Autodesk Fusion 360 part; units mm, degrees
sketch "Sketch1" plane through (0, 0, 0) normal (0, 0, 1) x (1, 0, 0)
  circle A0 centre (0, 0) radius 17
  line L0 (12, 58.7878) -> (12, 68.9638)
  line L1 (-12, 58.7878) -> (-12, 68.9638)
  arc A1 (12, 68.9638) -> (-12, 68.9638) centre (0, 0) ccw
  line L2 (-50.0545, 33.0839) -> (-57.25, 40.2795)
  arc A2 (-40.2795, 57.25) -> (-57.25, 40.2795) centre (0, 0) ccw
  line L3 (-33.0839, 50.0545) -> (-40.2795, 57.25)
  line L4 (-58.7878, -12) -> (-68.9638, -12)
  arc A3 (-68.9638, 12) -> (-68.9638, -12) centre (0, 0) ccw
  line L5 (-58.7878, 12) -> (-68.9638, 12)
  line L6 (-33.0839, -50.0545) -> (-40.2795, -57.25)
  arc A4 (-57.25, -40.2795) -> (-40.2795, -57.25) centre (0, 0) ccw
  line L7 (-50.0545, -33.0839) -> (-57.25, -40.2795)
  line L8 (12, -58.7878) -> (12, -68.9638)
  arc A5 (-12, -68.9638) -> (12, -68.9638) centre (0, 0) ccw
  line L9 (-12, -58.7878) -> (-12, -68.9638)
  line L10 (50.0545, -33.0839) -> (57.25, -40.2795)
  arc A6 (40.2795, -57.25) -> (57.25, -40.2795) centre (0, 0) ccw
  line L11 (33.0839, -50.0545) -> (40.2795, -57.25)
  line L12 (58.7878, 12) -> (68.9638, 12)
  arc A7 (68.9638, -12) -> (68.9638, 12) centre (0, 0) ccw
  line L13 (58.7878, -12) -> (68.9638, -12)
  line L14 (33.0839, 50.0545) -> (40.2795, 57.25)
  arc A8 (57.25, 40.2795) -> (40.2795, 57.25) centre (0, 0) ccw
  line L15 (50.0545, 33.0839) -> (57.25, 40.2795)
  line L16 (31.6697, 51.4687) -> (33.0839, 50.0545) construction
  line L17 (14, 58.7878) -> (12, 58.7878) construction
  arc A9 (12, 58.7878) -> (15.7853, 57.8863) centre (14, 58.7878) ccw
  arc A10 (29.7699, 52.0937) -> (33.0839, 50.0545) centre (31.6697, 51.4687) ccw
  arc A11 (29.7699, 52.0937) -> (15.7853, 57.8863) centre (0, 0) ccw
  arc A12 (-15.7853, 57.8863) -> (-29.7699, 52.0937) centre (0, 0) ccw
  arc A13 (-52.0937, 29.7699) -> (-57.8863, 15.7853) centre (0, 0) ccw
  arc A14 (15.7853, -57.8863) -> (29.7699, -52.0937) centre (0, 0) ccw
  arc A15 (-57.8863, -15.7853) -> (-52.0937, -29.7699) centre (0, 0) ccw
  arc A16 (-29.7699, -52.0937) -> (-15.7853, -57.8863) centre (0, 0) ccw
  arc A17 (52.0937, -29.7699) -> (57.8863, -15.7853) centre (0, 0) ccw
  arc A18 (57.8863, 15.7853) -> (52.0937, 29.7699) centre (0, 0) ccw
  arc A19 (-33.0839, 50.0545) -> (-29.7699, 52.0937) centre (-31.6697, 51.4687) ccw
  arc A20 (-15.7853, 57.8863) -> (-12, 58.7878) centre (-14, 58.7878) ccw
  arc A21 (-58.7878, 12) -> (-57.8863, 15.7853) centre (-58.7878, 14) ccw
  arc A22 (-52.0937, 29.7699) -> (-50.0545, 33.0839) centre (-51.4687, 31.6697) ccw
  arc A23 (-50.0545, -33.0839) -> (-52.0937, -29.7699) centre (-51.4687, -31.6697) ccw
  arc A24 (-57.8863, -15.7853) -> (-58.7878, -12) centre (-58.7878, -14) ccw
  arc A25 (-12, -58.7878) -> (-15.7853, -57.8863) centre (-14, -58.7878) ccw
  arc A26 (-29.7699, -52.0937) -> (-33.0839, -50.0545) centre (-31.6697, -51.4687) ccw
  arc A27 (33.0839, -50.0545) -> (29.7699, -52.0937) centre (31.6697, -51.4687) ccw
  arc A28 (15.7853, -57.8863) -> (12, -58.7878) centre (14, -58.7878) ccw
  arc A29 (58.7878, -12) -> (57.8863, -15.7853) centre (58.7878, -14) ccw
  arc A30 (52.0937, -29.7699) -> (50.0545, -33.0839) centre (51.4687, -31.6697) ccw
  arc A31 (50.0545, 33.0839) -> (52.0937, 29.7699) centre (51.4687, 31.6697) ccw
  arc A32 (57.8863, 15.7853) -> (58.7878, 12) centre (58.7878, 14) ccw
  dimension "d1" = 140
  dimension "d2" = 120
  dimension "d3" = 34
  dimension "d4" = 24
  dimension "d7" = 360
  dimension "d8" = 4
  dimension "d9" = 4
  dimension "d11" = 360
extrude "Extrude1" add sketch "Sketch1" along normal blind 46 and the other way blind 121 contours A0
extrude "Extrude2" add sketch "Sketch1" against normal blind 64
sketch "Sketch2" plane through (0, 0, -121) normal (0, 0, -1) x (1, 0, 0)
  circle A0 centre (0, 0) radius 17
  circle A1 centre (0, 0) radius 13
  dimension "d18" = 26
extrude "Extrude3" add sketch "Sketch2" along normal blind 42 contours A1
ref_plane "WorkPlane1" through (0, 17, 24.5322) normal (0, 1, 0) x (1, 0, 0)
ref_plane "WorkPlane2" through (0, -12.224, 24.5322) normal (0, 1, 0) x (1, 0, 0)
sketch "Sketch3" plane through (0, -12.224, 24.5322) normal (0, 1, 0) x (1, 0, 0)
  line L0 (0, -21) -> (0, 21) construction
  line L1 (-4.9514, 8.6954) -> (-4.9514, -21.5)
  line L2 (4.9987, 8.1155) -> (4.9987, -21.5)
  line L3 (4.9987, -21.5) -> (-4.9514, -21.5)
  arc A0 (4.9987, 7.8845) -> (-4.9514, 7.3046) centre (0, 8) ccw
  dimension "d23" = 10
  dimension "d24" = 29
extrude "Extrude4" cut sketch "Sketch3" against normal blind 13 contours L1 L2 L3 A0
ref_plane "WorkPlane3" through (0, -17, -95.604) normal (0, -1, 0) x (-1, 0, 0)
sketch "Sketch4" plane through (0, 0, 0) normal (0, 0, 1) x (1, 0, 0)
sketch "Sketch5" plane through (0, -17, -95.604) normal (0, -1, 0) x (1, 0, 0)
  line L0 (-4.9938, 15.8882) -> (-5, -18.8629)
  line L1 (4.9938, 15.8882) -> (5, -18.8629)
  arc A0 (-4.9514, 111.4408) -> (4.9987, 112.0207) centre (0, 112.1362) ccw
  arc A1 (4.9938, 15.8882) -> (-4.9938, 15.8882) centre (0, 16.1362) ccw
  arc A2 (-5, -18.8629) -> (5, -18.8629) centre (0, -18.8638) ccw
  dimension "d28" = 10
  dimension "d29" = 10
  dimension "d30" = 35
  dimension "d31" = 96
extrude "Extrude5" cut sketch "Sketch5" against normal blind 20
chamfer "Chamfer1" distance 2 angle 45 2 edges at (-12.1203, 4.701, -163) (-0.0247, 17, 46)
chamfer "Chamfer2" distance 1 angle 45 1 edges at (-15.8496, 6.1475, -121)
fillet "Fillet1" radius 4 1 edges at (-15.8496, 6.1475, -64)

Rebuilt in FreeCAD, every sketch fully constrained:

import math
import FreeCAD as App
import Part
import Sketcher


def edges_at(feature, points):
    """Names of the edges that pass closest to the given points."""
    edges = feature.Shape.Edges
    near = lambda p: min(range(len(edges)), key=lambda i: edges[i].distToShape(Part.Vertex(*p))[0])
    return sorted({f"Edge{near(p) + 1}" for p in points})

doc = App.newDocument("Part")
body = doc.addObject("PartDesign::Body", "Body")

sketch1 = doc.addObject("Sketcher::SketchObject", "Sketch")
body.addObject(sketch1)
sketch1.AttachmentSupport = (doc.XY_Plane, [""])
sketch1.MapMode = "FlatFace"
sketch1.addGeometry(Part.Circle(App.Vector(0, 0, 0), App.Vector(0, 0, 1), 17), False)
sketch1.addConstraint([
    Sketcher.Constraint("Coincident", 0, 3, -1, 1),
    Sketcher.Constraint("Diameter", 0, 34.0),
])
pad1 = doc.addObject("PartDesign::Pad", "Pad")
body.addObject(pad1)
pad1.Profile = sketch1
pad1.Type = "TwoLengths"
pad1.Length = 46
pad1.Length2 = 121

sketch2 = doc.addObject("Sketcher::SketchObject", "Sketch001")
body.addObject(sketch2)
sketch2.AttachmentSupport = (doc.XY_Plane, [""])
sketch2.MapMode = "FlatFace"
sketch2.addGeometry([
    Part.ArcOfCircle(Part.Circle(App.Vector(14, 58.8, 0), App.Vector(0, 0, 1), 2), math.radians(180), math.radians(333)),
    Part.LineSegment(App.Vector(12, 58.8, 0), App.Vector(12, 69, 0)),
    Part.ArcOfCircle(Part.Circle(App.Vector(0, 0, 0), App.Vector(0, 0, 1), 70), math.radians(80.13), math.radians(99.87)),
    Part.LineSegment(App.Vector(-12, 69, 0), App.Vector(-12, 58.8, 0)),
    Part.ArcOfCircle(Part.Circle(App.Vector(-14, 58.8, 0), App.Vector(0, 0, 1), 2), math.radians(-153), math.radians(0)),
    Part.ArcOfCircle(Part.Circle(App.Vector(0, 0, 0), App.Vector(0, 0, 1), 60), math.radians(105.25), math.radians(119.75)),
    Part.ArcOfCircle(Part.Circle(App.Vector(-31.7, 51.5, 0), App.Vector(0, 0, 1), 2), math.radians(-135), math.radians(18)),
    Part.LineSegment(App.Vector(-33.1, 50.1, 0), App.Vector(-40.3, 57.2, 0)),
    Part.ArcOfCircle(Part.Circle(App.Vector(0, 0, 0), App.Vector(0, 0, 1), 70), math.radians(125.13), math.radians(144.87)),
    Part.LineSegment(App.Vector(-57.2, 40.3, 0), App.Vector(-50.1, 33.1, 0)),
    Part.ArcOfCircle(Part.Circle(App.Vector(-51.5, 31.7, 0), App.Vector(0, 0, 1), 2), math.radians(-108), math.radians(45)),
    Part.ArcOfCircle(Part.Circle(App.Vector(0, 0, 0), App.Vector(0, 0, 1), 60), math.radians(150.25), math.radians(164.75)),
    Part.ArcOfCircle(Part.Circle(App.Vector(-58.8, 14, 0), App.Vector(0, 0, 1), 2), math.radians(-90), math.radians(63)),
    Part.LineSegment(App.Vector(-58.8, 12, 0), App.Vector(-69, 12, 0)),
    Part.ArcOfCircle(Part.Circle(App.Vector(0, 0, 0), App.Vector(0, 0, 1), 70), math.radians(170.13), math.radians(189.87)),
    Part.LineSegment(App.Vector(-69, -12, 0), App.Vector(-58.8, -12, 0)),
    Part.ArcOfCircle(Part.Circle(App.Vector(-58.8, -14, 0), App.Vector(0, 0, 1), 2), math.radians(-63), math.radians(90)),
    Part.ArcOfCircle(Part.Circle(App.Vector(0, 0, 0), App.Vector(0, 0, 1), 60), math.radians(-164.75), math.radians(-150.25)),
    Part.ArcOfCircle(Part.Circle(App.Vector(-51.5, -31.7, 0), App.Vector(0, 0, 1), 2), math.radians(-45), math.radians(108)),
    Part.LineSegment(App.Vector(-50.1, -33.1, 0), App.Vector(-57.2, -40.3, 0)),
    Part.ArcOfCircle(Part.Circle(App.Vector(0, 0, 0), App.Vector(0, 0, 1), 70), math.radians(-144.87), math.radians(-125.13)),
    Part.LineSegment(App.Vector(-40.3, -57.2, 0), App.Vector(-33.1, -50.1, 0)),
    Part.ArcOfCircle(Part.Circle(App.Vector(-31.7, -51.5, 0), App.Vector(0, 0, 1), 2), math.radians(-18), math.radians(135)),
    Part.ArcOfCircle(Part.Circle(App.Vector(0, 0, 0), App.Vector(0, 0, 1), 60), math.radians(-119.75), math.radians(-105.25)),
    Part.ArcOfCircle(Part.Circle(App.Vector(-14, -58.8, 0), App.Vector(0, 0, 1), 2), math.radians(0), math.radians(153)),
    Part.LineSegment(App.Vector(-12, -58.8, 0), App.Vector(-12, -69, 0)),
    Part.ArcOfCircle(Part.Circle(App.Vector(0, 0, 0), App.Vector(0, 0, 1), 70), math.radians(-99.87), math.radians(-80.13)),
    Part.LineSegment(App.Vector(12, -69, 0), App.Vector(12, -58.8, 0)),
    Part.ArcOfCircle(Part.Circle(App.Vector(14, -58.8, 0), App.Vector(0, 0, 1), 2), math.radians(27), math.radians(180)),
    Part.ArcOfCircle(Part.Circle(App.Vector(0, 0, 0), App.Vector(0, 0, 1), 60), math.radians(-74.75), math.radians(-60.25)),
    Part.ArcOfCircle(Part.Circle(App.Vector(31.7, -51.5, 0), App.Vector(0, 0, 1), 2), math.radians(45), math.radians(198)),
    Part.LineSegment(App.Vector(33.1, -50.1, 0), App.Vector(40.3, -57.2, 0)),
    Part.ArcOfCircle(Part.Circle(App.Vector(0, 0, 0), App.Vector(0, 0, 1), 70), math.radians(-54.87), math.radians(-35.13)),
    Part.LineSegment(App.Vector(57.2, -40.3, 0), App.Vector(50.1, -33.1, 0)),
    Part.ArcOfCircle(Part.Circle(App.Vector(51.5, -31.7, 0), App.Vector(0, 0, 1), 2), math.radians(72), math.radians(225)),
    Part.ArcOfCircle(Part.Circle(App.Vector(0, 0, 0), App.Vector(0, 0, 1), 60), math.radians(-29.75), math.radians(-15.25)),
    Part.ArcOfCircle(Part.Circle(App.Vector(58.8, -14, 0), App.Vector(0, 0, 1), 2), math.radians(90), math.radians(243)),
    Part.LineSegment(App.Vector(58.8, -12, 0), App.Vector(69, -12, 0)),
    Part.ArcOfCircle(Part.Circle(App.Vector(0, 0, 0), App.Vector(0, 0, 1), 70), math.radians(-9.87), math.radians(9.87)),
    Part.LineSegment(App.Vector(69, 12, 0), App.Vector(58.8, 12, 0)),
    Part.ArcOfCircle(Part.Circle(App.Vector(58.8, 14, 0), App.Vector(0, 0, 1), 2), math.radians(117), math.radians(270)),
    Part.ArcOfCircle(Part.Circle(App.Vector(0, 0, 0), App.Vector(0, 0, 1), 60), math.radians(15.25), math.radians(29.75)),
    Part.ArcOfCircle(Part.Circle(App.Vector(51.5, 31.7, 0), App.Vector(0, 0, 1), 2), math.radians(135), math.radians(288)),
    Part.LineSegment(App.Vector(50.1, 33.1, 0), App.Vector(57.2, 40.3, 0)),
    Part.ArcOfCircle(Part.Circle(App.Vector(0, 0, 0), App.Vector(0, 0, 1), 70), math.radians(35.13), math.radians(54.87)),
    Part.LineSegment(App.Vector(40.3, 57.2, 0), App.Vector(33.1, 50.1, 0)),
    Part.ArcOfCircle(Part.Circle(App.Vector(31.7, 51.5, 0), App.Vector(0, 0, 1), 2), math.radians(162), math.radians(315)),
    Part.ArcOfCircle(Part.Circle(App.Vector(0, 0, 0), App.Vector(0, 0, 1), 60), math.radians(60.25), math.radians(74.75)),
    Part.Circle(App.Vector(0, 0, 0), App.Vector(0, 0, 1), 17),
], False)
sketch2.addConstraint([
    Sketcher.Constraint("Tangent", 0, 1, 1, 1),
    Sketcher.Constraint("Coincident", 1, 2, 2, 1),
    Sketcher.Constraint("Coincident", 2, 2, 3, 1),
    Sketcher.Constraint("Tangent", 3, 2, 4, 2),
    Sketcher.Constraint("Coincident", 4, 1, 5, 1),
    Sketcher.Constraint("Coincident", 5, 2, 6, 2),
    Sketcher.Constraint("Tangent", 6, 1, 7, 1),
    Sketcher.Constraint("Coincident", 7, 2, 8, 1),
    Sketcher.Constraint("Coincident", 8, 2, 9, 1),
    Sketcher.Constraint("Tangent", 9, 2, 10, 2),
    Sketcher.Constraint("Coincident", 10, 1, 11, 1),
    Sketcher.Constraint("Coincident", 11, 2, 12, 2),
    Sketcher.Constraint("Tangent", 12, 1, 13, 1),
    Sketcher.Constraint("Coincident", 13, 2, 14, 1),
    Sketcher.Constraint("Coincident", 14, 2, 15, 1),
    Sketcher.Constraint("Tangent", 15, 2, 16, 2),
    Sketcher.Constraint("Coincident", 16, 1, 17, 1),
    Sketcher.Constraint("Coincident", 17, 2, 18, 2),
    Sketcher.Constraint("Tangent", 18, 1, 19, 1),
    Sketcher.Constraint("Coincident", 19, 2, 20, 1),
    Sketcher.Constraint("Coincident", 20, 2, 21, 1),
    Sketcher.Constraint("Tangent", 21, 2, 22, 2),
    Sketcher.Constraint("Coincident", 22, 1, 23, 1),
    Sketcher.Constraint("Coincident", 23, 2, 24, 2),
    Sketcher.Constraint("Tangent", 24, 1, 25, 1),
    Sketcher.Constraint("Coincident", 25, 2, 26, 1),
    Sketcher.Constraint("Coincident", 26, 2, 27, 1),
    Sketcher.Constraint("Tangent", 27, 2, 28, 2),
    Sketcher.Constraint("Coincident", 28, 1, 29, 1),
    Sketcher.Constraint("Coincident", 29, 2, 30, 2),
    Sketcher.Constraint("Tangent", 30, 1, 31, 1),
    Sketcher.Constraint("Coincident", 31, 2, 32, 1),
    Sketcher.Constraint("Coincident", 32, 2, 33, 1),
    Sketcher.Constraint("Tangent", 33, 2, 34, 2),
    Sketcher.Constraint("Coincident", 34, 1, 35, 1),
    Sketcher.Constraint("Coincident", 35, 2, 36, 2),
    Sketcher.Constraint("Tangent", 36, 1, 37, 1),
    Sketcher.Constraint("Coincident", 37, 2, 38, 1),
    Sketcher.Constraint("Coincident", 38, 2, 39, 1),
    Sketcher.Constraint("Tangent", 39, 2, 40, 2),
    Sketcher.Constraint("Coincident", 40, 1, 41, 1),
    Sketcher.Constraint("Coincident", 41, 2, 42, 2),
    Sketcher.Constraint("Tangent", 42, 1, 43, 1),
    Sketcher.Constraint("Coincident", 43, 2, 44, 1),
    Sketcher.Constraint("Coincident", 44, 2, 45, 1),
    Sketcher.Constraint("Tangent", 45, 2, 46, 2),
    Sketcher.Constraint("Coincident", 46, 1, 47, 1),
    Sketcher.Constraint("Coincident", 47, 2, 0, 2),
    Sketcher.Constraint("Vertical", 1),
    Sketcher.Constraint("Vertical", 3),
    Sketcher.Constraint("Horizontal", 13),
    Sketcher.Constraint("Horizontal", 15),
    Sketcher.Constraint("Vertical", 25),
    Sketcher.Constraint("Vertical", 27),
    Sketcher.Constraint("Horizontal", 37),
    Sketcher.Constraint("Horizontal", 39),
    Sketcher.Constraint("Coincident", 2, 3, -1, 1),
    Sketcher.Constraint("Coincident", 5, 3, -1, 1),
    Sketcher.Constraint("Coincident", 8, 3, -1, 1),
    Sketcher.Constraint("Coincident", 11, 3, -1, 1),
    Sketcher.Constraint("Coincident", 14, 3, -1, 1),
    Sketcher.Constraint("Coincident", 17, 3, -1, 1),
    Sketcher.Constraint("Coincident", 20, 3, -1, 1),
    Sketcher.Constraint("Coincident", 23, 3, -1, 1),
    Sketcher.Constraint("Coincident", 26, 3, -1, 1),
    Sketcher.Constraint("Coincident", 29, 3, -1, 1),
    Sketcher.Constraint("Coincident", 32, 3, -1, 1),
    Sketcher.Constraint("Coincident", 35, 3, -1, 1),
    Sketcher.Constraint("Coincident", 38, 3, -1, 1),
    Sketcher.Constraint("Coincident", 41, 3, -1, 1),
    Sketcher.Constraint("Coincident", 44, 3, -1, 1),
    Sketcher.Constraint("Coincident", 47, 3, -1, 1),
    Sketcher.Constraint("Coincident", 48, 3, -1, 1),
    Sketcher.Constraint("Equal", 0, 4),
    Sketcher.Constraint("Equal", 4, 6),
    Sketcher.Constraint("Equal", 2, 8),
    Sketcher.Constraint("Equal", 6, 10),
    Sketcher.Constraint("Equal", 5, 11),
    Sketcher.Constraint("Equal", 10, 12),
    Sketcher.Constraint("Equal", 8, 14),
    Sketcher.Constraint("Equal", 12, 16),
    Sketcher.Constraint("Equal", 11, 17),
    Sketcher.Constraint("Equal", 16, 18),
    Sketcher.Constraint("Equal", 14, 20),
    Sketcher.Constraint("Equal", 18, 22),
    Sketcher.Constraint("Equal", 17, 23),
    Sketcher.Constraint("Equal", 22, 24),
    Sketcher.Constraint("Equal", 20, 26),
    Sketcher.Constraint("Equal", 24, 28),
    Sketcher.Constraint("Equal", 23, 29),
    Sketcher.Constraint("Equal", 28, 30),
    Sketcher.Constraint("Equal", 26, 32),
    Sketcher.Constraint("Equal", 30, 34),
    Sketcher.Constraint("Equal", 29, 35),
    Sketcher.Constraint("Equal", 34, 36),
    Sketcher.Constraint("Equal", 32, 38),
    Sketcher.Constraint("Equal", 36, 40),
    Sketcher.Constraint("Equal", 35, 41),
    Sketcher.Constraint("Equal", 40, 42),
    Sketcher.Constraint("Equal", 38, 44),
    Sketcher.Constraint("Equal", 42, 46),
    Sketcher.Constraint("Equal", 41, 47),
    Sketcher.Constraint("Symmetric", 0, 3, 24, 3, -1, 1),
    Sketcher.Constraint("Symmetric", 4, 3, 28, 3, -1, 1),
    Sketcher.Constraint("Symmetric", 6, 3, 30, 3, -1, 1),
    Sketcher.Constraint("Symmetric", 10, 3, 34, 3, -1, 1),
    Sketcher.Constraint("Symmetric", 12, 3, 36, 3, -1, 1),
    Sketcher.Constraint("Symmetric", 16, 3, 40, 3, -1, 1),
    Sketcher.Constraint("Symmetric", 18, 3, 42, 3, -1, 1),
    Sketcher.Constraint("Symmetric", 22, 3, 46, 3, -1, 1),
    Sketcher.Constraint("Symmetric", 0, 3, 4, 3, -2),
    Sketcher.Constraint("Symmetric", 22, 3, 30, 3, -2),
    Sketcher.Constraint("Symmetric", 18, 3, 34, 3, -2),
    Sketcher.Constraint("Symmetric", 16, 3, 36, 3, -2),
    Sketcher.Constraint("Parallel", 7, 9),
    Sketcher.Constraint("Perpendicular", 9, 19),
    Sketcher.Constraint("Parallel", 19, 21),
    Sketcher.Constraint("Perpendicular", 21, 31),
    Sketcher.Constraint("Parallel", 31, 33),
    Sketcher.Constraint("Perpendicular", 33, 43),
    Sketcher.Constraint("Parallel", 43, 45),
    Sketcher.Constraint("Horizontal", 21, 2, 30, 1),
    Sketcher.Constraint("Equal", 39, 1),
    Sketcher.Constraint("Equal", 7, 9),
    Sketcher.Constraint("Diameter", 48, 34.0),
    Sketcher.Constraint("Radius", 0, 2.0),
    Sketcher.Constraint("Radius", 2, 70.0),
    Sketcher.Constraint("Radius", 5, 60.0),
    Sketcher.Constraint("DistanceX", -1, 1, 0, 3, 14.0),
    Sketcher.Constraint("DistanceY", -1, 1, 12, 3, 14.0),
    Sketcher.Constraint("DistanceX", 13, 2, 13, 1, 10.176),
    Sketcher.Constraint("DistanceX", 5, 2, -1, 1, 29.77),
    Sketcher.Constraint("DistanceY", -1, 1, 7, 2, 57.25),
    Sketcher.Constraint("DistanceX", 8, 2, -1, 1, 57.25),
])
pad2 = doc.addObject("PartDesign::Pad", "Pad001")
body.addObject(pad2)
pad2.Profile = sketch2
pad2.Length = 64
pad2.Reversed = True

sketch3 = doc.addObject("Sketcher::SketchObject", "Sketch002")
body.addObject(sketch3)
sketch3.AttachmentSupport = (doc.XY_Plane, [""])
sketch3.MapMode = "FlatFace"
sketch3.AttachmentOffset = App.Placement(App.Vector(0, 0, -121), App.Rotation())
sketch3.addGeometry(Part.Circle(App.Vector(0, 0, 0), App.Vector(0, 0, 1), 13), False)
sketch3.addConstraint([
    Sketcher.Constraint("Coincident", 0, 3, -1, 1),
    Sketcher.Constraint("Diameter", 0, 26.0),
])
pad3 = doc.addObject("PartDesign::Pad", "Pad002")
body.addObject(pad3)
pad3.Profile = sketch3
pad3.Length = 42
pad3.Reversed = True

sketch4 = doc.addObject("Sketcher::SketchObject", "Sketch003")
body.addObject(sketch4)
sketch4.AttachmentSupport = (doc.XZ_Plane, [""])
sketch4.MapMode = "FlatFace"
sketch4.AttachmentOffset = App.Placement(App.Vector(0, 0, 12.224), App.Rotation())
sketch4.addGeometry([
    Part.ArcOfCircle(Part.Circle(App.Vector(0, 17, 0), App.Vector(0, 0, 1), 5), math.radians(-172), math.radians(-1)),
    Part.LineSegment(App.Vector(-5, 16, 0), App.Vector(-5, 46, 0)),
    Part.LineSegment(App.Vector(-5, 46, 0), App.Vector(5, 46, 0)),
    Part.LineSegment(App.Vector(5, 46, 0), App.Vector(5, 16, 0)),
], False)
sketch4.addConstraint([
    Sketcher.Constraint("Coincident", 0, 1, 1, 1),
    Sketcher.Constraint("Coincident", 1, 2, 2, 1),
    Sketcher.Constraint("Coincident", 2, 2, 3, 1),
    Sketcher.Constraint("Coincident", 3, 2, 0, 2),
    Sketcher.Constraint("Vertical", 1),
    Sketcher.Constraint("Horizontal", 2),
    Sketcher.Constraint("Vertical", 3),
    Sketcher.Constraint("PointOnObject", 0, 3, -2),
    Sketcher.Constraint("Radius", 0, 5.0),
    Sketcher.Constraint("DistanceX", 2, 1, 2, 2, 9.95),
    Sketcher.Constraint("DistanceY", 0, 3, 1, 2, 29.5),
    Sketcher.Constraint("DistanceY", 0, 1, 3, 2, 0.58),
    Sketcher.Constraint("DistanceY", -1, 1, 0, 3, 16.5322),
])
pocket1 = doc.addObject("PartDesign::Pocket", "Pocket")
body.addObject(pocket1)
pocket1.Profile = sketch4
pocket1.Length = 13
pocket1.Reversed = True

sketch5 = doc.addObject("Sketcher::SketchObject", "Sketch004")
body.addObject(sketch5)
sketch5.AttachmentSupport = (doc.XZ_Plane, [""])
sketch5.MapMode = "FlatFace"
sketch5.AttachmentOffset = App.Placement(App.Vector(0, 0, 17), App.Rotation())
sketch5.addGeometry([
    Part.ArcOfCircle(Part.Circle(App.Vector(0, -79.4678, 0), App.Vector(0, 0, 1), 4.999954), math.radians(-2.843063), math.radians(182.843063)),
    Part.LineSegment(App.Vector(-4.9938, -79.7158, 0), App.Vector(-5, -114.4669, 0)),
    Part.ArcOfCircle(Part.Circle(App.Vector(0, -114.4678, 0), App.Vector(0, 0, 1), 5), math.radians(179.989687), math.radians(360.010313)),
    Part.LineSegment(App.Vector(5, -114.4669, 0), App.Vector(4.9938, -79.7158, 0)),
], False)
sketch5.addConstraint([
    Sketcher.Constraint("Coincident", 0, 2, 1, 1),
    Sketcher.Constraint("Coincident", 1, 2, 2, 1),
    Sketcher.Constraint("Coincident", 2, 2, 3, 1),
    Sketcher.Constraint("Coincident", 3, 2, 0, 1),
    Sketcher.Constraint("PointOnObject", 0, 3, -2),
    Sketcher.Constraint("PointOnObject", 2, 3, -2),
    Sketcher.Constraint("Radius", 0, 5.0),
    Sketcher.Constraint("Radius", 2, 5.0),
    Sketcher.Constraint("DistanceY", 2, 3, 0, 3, 35.0),
    Sketcher.Constraint("Distance", 1, 34.751),
    Sketcher.Constraint("Distance", 3, 34.751),
    Sketcher.Constraint("DistanceY", 1, 2, -1, 1, 114.467),
    Sketcher.Constraint("DistanceY", 2, 2, -1, 1, 114.467),
    Sketcher.Constraint("DistanceY", 0, 2, 0, 3, 0.248),
])
pocket2 = doc.addObject("PartDesign::Pocket", "Pocket001")
body.addObject(pocket2)
pocket2.Profile = sketch5
pocket2.Length = 20
doc.recompute()

chamfer = doc.addObject("PartDesign::Chamfer", "Chamfer")
body.addObject(chamfer)
chamfer.Base = (pocket2, edges_at(pocket2, [(-12.12, 4.701, -163), (-0.025, 17, 46)]))
chamfer.Size = 2
doc.recompute()

chamfer2 = doc.addObject("PartDesign::Chamfer", "Chamfer001")
body.addObject(chamfer2)
chamfer2.Base = (chamfer, edges_at(chamfer, [(-15.85, 6.147, -121)]))
chamfer2.Size = 1
doc.recompute()

fillet = doc.addObject("PartDesign::Fillet", "Fillet")
body.addObject(fillet)
fillet.Base = (chamfer2, edges_at(chamfer2, [(-15.85, 6.147, -64)]))
fillet.Radius = 4

doc.recompute()
